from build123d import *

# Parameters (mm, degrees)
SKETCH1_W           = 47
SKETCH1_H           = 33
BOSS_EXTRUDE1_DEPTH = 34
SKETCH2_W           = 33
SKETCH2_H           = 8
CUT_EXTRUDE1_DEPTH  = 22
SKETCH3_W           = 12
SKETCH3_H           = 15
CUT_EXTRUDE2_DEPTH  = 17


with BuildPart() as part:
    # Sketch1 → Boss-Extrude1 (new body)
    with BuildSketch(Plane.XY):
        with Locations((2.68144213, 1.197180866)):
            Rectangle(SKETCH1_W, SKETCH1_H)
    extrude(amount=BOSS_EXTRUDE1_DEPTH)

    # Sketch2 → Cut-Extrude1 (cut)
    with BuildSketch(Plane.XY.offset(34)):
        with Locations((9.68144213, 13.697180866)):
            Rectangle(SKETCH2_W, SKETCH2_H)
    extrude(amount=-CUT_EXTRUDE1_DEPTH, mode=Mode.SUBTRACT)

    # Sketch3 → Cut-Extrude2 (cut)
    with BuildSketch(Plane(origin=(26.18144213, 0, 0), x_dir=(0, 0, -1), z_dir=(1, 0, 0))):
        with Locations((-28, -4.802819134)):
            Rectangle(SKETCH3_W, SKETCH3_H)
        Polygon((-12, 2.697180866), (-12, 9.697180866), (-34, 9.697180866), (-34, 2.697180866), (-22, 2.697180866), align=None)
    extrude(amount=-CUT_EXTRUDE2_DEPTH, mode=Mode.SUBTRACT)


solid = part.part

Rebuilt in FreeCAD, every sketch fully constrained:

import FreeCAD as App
import Part
import Sketcher
from FreeCAD import Vector

doc = App.newDocument("Part")
params = doc.addObject("Spreadsheet::Sheet", "Params")
for row, (alias, value) in enumerate([
    ("sketch1_width", "47 mm"),
    ("sketch1_height", "33 mm"),
    ("pad1_length", "34 mm"),
    ("sketch2_width", "33 mm"),
    ("sketch2_height", "8 mm"),
    ("pocket1_length", "22 mm"),
    ("sketch3_width", "15 mm"),
    ("sketch3_width2", "7 mm"),
    ("sketch3_height", "12 mm"),
    ("pocket2_length", "17 mm"),
], start=1):
    params.set(f"A{row}", alias)
    params.set(f"B{row}", "=" + value)
    params.setAlias(f"B{row}", alias)

body = doc.addObject("PartDesign::Body", "Body")

sketch1 = body.newObject("Sketcher::SketchObject", "Sketch")
sketch1.AttachmentSupport = (doc.getObject("XY_Plane"), [""])
sketch1.MapMode = "FlatFace"
sketch1.addGeometry([
    Part.LineSegment(Vector(-20.818558, 17.697181, 0), Vector(-20.818558, -15.302819, 0)),
    Part.LineSegment(Vector(-20.818558, -15.302819, 0), Vector(26.181442, -15.302819, 0)),
    Part.LineSegment(Vector(26.181442, -15.302819, 0), Vector(26.181442, 17.697181, 0)),
    Part.LineSegment(Vector(26.181442, 17.697181, 0), Vector(-20.818558, 17.697181, 0)),
], False)
sketch1.addConstraint([
    Sketcher.Constraint("Coincident", 0, 2, 1, 1),
    Sketcher.Constraint("Coincident", 1, 2, 2, 1),
    Sketcher.Constraint("Coincident", 2, 2, 3, 1),
    Sketcher.Constraint("Coincident", 3, 2, 0, 1),
    Sketcher.Constraint("Vertical", 0),
    Sketcher.Constraint("Horizontal", 1),
    Sketcher.Constraint("Vertical", 2),
    Sketcher.Constraint("Horizontal", 3),
    Sketcher.Constraint("DistanceX", 1, 1, 1, 2, 47.0),
    Sketcher.Constraint("DistanceY", 0, 2, 0, 1, 33.0),
    Sketcher.Constraint("DistanceY", 0, 2, -1, 1, 15.302819),
    Sketcher.Constraint("DistanceX", 0, 2, -1, 1, 20.818558),
])
sketch1.setExpression("Constraints[8]", "Params.sketch1_width")
sketch1.setExpression("Constraints[9]", "Params.sketch1_height")
pad1 = body.newObject("PartDesign::Pad", "Pad")
pad1.Profile = sketch1
pad1.setExpression("Length", "Params.pad1_length")

sketch2 = body.newObject("Sketcher::SketchObject", "Sketch001")
sketch2.AttachmentSupport = (doc.getObject("XY_Plane"), [""])
sketch2.MapMode = "FlatFace"
sketch2.AttachmentOffset = App.Placement(Vector(0, 0, 34), App.Rotation())
sketch2.addGeometry([
    Part.LineSegment(Vector(-6.818558, 17.697181, 0), Vector(-6.818558, 9.697181, 0)),
    Part.LineSegment(Vector(-6.818558, 9.697181, 0), Vector(26.181442, 9.697181, 0)),
    Part.LineSegment(Vector(26.181442, 9.697181, 0), Vector(26.181442, 17.697181, 0)),
    Part.LineSegment(Vector(26.181442, 17.697181, 0), Vector(-6.818558, 17.697181, 0)),
], False)
sketch2.addConstraint([
    Sketcher.Constraint("Coincident", 0, 2, 1, 1),
    Sketcher.Constraint("Coincident", 1, 2, 2, 1),
    Sketcher.Constraint("Coincident", 2, 2, 3, 1),
    Sketcher.Constraint("Coincident", 3, 2, 0, 1),
    Sketcher.Constraint("Vertical", 0),
    Sketcher.Constraint("Horizontal", 1),
    Sketcher.Constraint("Vertical", 2),
    Sketcher.Constraint("Horizontal", 3),
    Sketcher.Constraint("DistanceX", 1, 1, 1, 2, 33.0),
    Sketcher.Constraint("DistanceY", 0, 2, 0, 1, 8.0),
    Sketcher.Constraint("DistanceY", -1, 1, 0, 2, 9.697181),
    Sketcher.Constraint("DistanceX", 0, 2, -1, 1, 6.818558),
])
sketch2.setExpression("Constraints[8]", "Params.sketch2_width")
sketch2.setExpression("Constraints[9]", "Params.sketch2_height")
pocket1 = body.newObject("PartDesign::Pocket", "Pocket")
pocket1.Profile = sketch2
pocket1.setExpression("Length", "Params.pocket1_length")

sketch3 = body.newObject("Sketcher::SketchObject", "Sketch002")
sketch3.AttachmentSupport = (doc.getObject("YZ_Plane"), [""])
sketch3.MapMode = "FlatFace"
sketch3.AttachmentOffset = App.Placement(Vector(0, 0, 26.181442), App.Rotation())
sketch3.addGeometry([
    Part.LineSegment(Vector(-12.302819, 34, 0), Vector(-12.302819, 22, 0)),
    Part.LineSegment(Vector(-12.302819, 22, 0), Vector(2.697181, 22, 0)),
    Part.LineSegment(Vector(2.697181, 22, 0), Vector(2.697181, 12, 0)),
    Part.LineSegment(Vector(2.697181, 12, 0), Vector(9.697181, 12, 0)),
    Part.LineSegment(Vector(9.697181, 12, 0), Vector(9.697181, 34, 0)),
    Part.LineSegment(Vector(9.697181, 34, 0), Vector(-12.302819, 34, 0)),
], False)
sketch3.addConstraint([
    Sketcher.Constraint("Coincident", 0, 2, 1, 1),
    Sketcher.Constraint("Coincident", 1, 2, 2, 1),
    Sketcher.Constraint("Coincident", 2, 2, 3, 1),
    Sketcher.Constraint("Coincident", 3, 2, 4, 1),
    Sketcher.Constraint("Coincident", 4, 2, 5, 1),
    Sketcher.Constraint("Coincident", 5, 2, 0, 1),
    Sketcher.Constraint("Vertical", 0),
    Sketcher.Constraint("Horizontal", 1),
    Sketcher.Constraint("Vertical", 2),
    Sketcher.Constraint("Horizontal", 3),
    Sketcher.Constraint("Vertical", 4),
    Sketcher.Constraint("Horizontal", 5),
    Sketcher.Constraint("Equal", 5, 4),
    Sketcher.Constraint("DistanceX", 1, 1, 1, 2, 15.0),
    Sketcher.Constraint("DistanceX", 3, 1, 3, 2, 7.0),
    Sketcher.Constraint("DistanceY", 0, 2, 0, 1, 12.0),
    Sketcher.Constraint("DistanceY", -1, 1, 0, 2, 22.0),
    Sketcher.Constraint("DistanceX", 0, 2, -1, 1, 12.302819),
])
sketch3.setExpression("Constraints[13]", "Params.sketch3_width")
sketch3.setExpression("Constraints[14]", "Params.sketch3_width2")
sketch3.setExpression("Constraints[15]", "Params.sketch3_height")
pocket2 = body.newObject("PartDesign::Pocket", "Pocket001")
pocket2.Profile = sketch3
pocket2.setExpression("Length", "Params.pocket2_length")

doc.recompute()
